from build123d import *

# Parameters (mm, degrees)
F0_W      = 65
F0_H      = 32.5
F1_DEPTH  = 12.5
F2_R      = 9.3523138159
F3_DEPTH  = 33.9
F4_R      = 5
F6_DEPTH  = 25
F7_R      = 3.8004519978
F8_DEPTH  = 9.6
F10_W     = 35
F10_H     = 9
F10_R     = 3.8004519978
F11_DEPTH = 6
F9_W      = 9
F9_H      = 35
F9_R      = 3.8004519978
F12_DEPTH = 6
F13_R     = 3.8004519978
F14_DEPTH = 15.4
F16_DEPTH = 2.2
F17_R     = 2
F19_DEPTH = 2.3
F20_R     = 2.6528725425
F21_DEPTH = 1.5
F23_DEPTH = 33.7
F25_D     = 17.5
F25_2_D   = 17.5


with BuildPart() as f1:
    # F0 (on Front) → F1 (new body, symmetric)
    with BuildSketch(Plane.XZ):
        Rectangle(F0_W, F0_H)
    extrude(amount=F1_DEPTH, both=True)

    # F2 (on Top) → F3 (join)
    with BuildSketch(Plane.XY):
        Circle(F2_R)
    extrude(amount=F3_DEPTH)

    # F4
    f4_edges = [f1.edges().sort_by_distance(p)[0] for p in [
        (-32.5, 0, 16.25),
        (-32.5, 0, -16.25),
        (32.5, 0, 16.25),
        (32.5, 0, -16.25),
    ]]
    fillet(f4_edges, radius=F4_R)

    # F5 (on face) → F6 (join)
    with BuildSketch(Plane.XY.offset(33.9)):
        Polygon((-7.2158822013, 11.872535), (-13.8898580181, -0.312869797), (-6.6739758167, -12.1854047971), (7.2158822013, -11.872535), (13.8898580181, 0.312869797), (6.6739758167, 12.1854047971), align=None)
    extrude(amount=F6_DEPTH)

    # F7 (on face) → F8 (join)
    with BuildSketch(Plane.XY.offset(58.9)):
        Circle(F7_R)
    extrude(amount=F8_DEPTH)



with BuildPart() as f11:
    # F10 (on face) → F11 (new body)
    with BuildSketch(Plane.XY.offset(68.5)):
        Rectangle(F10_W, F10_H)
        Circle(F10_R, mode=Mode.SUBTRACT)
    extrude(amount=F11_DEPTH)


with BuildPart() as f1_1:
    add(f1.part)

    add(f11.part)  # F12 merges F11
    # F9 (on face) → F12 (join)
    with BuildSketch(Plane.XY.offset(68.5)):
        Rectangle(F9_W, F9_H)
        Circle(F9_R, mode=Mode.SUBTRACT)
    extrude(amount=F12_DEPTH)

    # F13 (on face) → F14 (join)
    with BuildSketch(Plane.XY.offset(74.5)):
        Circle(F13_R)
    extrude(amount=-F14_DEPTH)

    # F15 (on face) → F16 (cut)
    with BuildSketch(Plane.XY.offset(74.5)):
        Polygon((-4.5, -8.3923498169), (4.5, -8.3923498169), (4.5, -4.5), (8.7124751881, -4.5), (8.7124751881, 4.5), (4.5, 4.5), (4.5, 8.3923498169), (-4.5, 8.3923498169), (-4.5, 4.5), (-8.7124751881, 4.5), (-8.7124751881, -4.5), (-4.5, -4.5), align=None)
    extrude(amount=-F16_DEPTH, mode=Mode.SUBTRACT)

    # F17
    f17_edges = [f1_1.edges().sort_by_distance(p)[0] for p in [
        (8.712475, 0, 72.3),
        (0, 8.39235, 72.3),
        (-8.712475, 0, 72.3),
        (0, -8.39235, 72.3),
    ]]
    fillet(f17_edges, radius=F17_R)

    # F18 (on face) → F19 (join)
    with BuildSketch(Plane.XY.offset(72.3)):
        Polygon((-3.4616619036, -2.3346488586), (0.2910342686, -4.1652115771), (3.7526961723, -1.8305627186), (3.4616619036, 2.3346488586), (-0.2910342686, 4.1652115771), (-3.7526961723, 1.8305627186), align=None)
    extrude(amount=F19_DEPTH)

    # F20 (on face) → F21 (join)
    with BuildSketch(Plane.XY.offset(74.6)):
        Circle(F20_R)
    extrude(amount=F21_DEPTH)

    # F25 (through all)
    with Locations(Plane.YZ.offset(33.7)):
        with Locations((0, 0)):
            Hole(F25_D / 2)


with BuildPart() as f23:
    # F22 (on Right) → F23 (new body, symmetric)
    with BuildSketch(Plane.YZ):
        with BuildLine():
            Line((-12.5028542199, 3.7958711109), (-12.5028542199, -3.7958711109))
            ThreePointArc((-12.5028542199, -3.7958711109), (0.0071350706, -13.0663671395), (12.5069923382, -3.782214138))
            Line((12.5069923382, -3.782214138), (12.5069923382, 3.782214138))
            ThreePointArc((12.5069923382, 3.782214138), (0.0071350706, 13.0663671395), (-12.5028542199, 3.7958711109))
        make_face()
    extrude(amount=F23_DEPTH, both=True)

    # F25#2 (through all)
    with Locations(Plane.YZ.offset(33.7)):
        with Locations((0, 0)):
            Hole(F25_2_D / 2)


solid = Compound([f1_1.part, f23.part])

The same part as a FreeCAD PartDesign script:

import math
import FreeCAD as App
import Part
import Sketcher

V = App.Vector


def edges_at(feature, points):
    """Names of the edges that pass closest to the given points."""
    edges = feature.Shape.Edges
    near = lambda p: min(range(len(edges)), key=lambda i: edges[i].distToShape(Part.Vertex(*p))[0])
    return sorted({f"Edge{near(p) + 1}" for p in points})


def add_polygon(sketch, points):
    """Adds a closed chain of lines whose ends are joined by coincident constraints."""
    first, n = sketch.GeometryCount, len(points)
    for a, b in zip(points, points[1:] + points[:1]):
        sketch.addGeometry(Part.LineSegment(App.Vector(*a, 0), App.Vector(*b, 0)), False)
    for i in range(n):
        sketch.addConstraint(Sketcher.Constraint("Coincident", first + i, 2, first + (i + 1) % n, 1))

doc = App.newDocument("Part")
body = doc.addObject("PartDesign::Body", "Body")

# Sketch on XZ plane
sketch1 = body.newObject("Sketcher::SketchObject", "Sketch")
sketch1.AttachmentSupport = (doc.getObject("XZ_Plane"), [""])
sketch1.MapMode = "FlatFace"
add_polygon(sketch1, [(-32, 16), (-32, -16), (32, -16), (32, 16)])  # lines 0-3
sketch1.addConstraint([
    Sketcher.Constraint("Vertical", 0),
    Sketcher.Constraint("Horizontal", 1),
    Sketcher.Constraint("Vertical", 2),
    Sketcher.Constraint("Horizontal", 3),
    Sketcher.Constraint("Symmetric", 0, 2, 2, 2, -1, 1),
    Sketcher.Constraint("DistanceX", 1, 1, 1, 2, 65.0),
    Sketcher.Constraint("DistanceY", 0, 2, 0, 1, 32.5),
])
pad1 = body.newObject("PartDesign::Pad", "Pad")
pad1.Profile = sketch1
pad1.Length = 25
pad1.Midplane = True

# Sketch on XY plane
sketch2 = body.newObject("Sketcher::SketchObject", "Sketch001")
sketch2.AttachmentSupport = (doc.getObject("XY_Plane"), [""])
sketch2.MapMode = "FlatFace"
sketch2.addGeometry(Part.Circle(V(0, 0, 0), V(0, 0, 1), 9), False)
sketch2.addConstraint([
    Sketcher.Constraint("Coincident", 0, 3, -1, 1),
    Sketcher.Constraint("Diameter", 0, 18.704628),
])
pad2 = body.newObject("PartDesign::Pad", "Pad001")
pad2.Profile = sketch2
pad2.Length = 33.9
doc.recompute()

fillet = body.newObject("PartDesign::Fillet", "Fillet")
fillet.Base = (pad2, edges_at(pad2, [
    (-32.5, 0, 16.25),
    (-32.5, 0, -16.25),
    (32.5, 0, 16.25),
    (32.5, 0, -16.25),
]))
fillet.Radius = 5

# Sketch on XY plane
sketch3 = body.newObject("Sketcher::SketchObject", "Sketch002")
sketch3.AttachmentSupport = (doc.getObject("XY_Plane"), [""])
sketch3.MapMode = "FlatFace"
sketch3.AttachmentOffset = App.Placement(V(0, 0, 33.9), App.Rotation())
add_polygon(sketch3, [(-7, 12), (-14, 0), (-7, -12), (7, -12), (14, 0), (7, 12)])  # lines 0-5
sketch3.addConstraint([
    Sketcher.Constraint("Symmetric", 0, 2, 3, 2, -1, 1),
    Sketcher.Constraint("Symmetric", 1, 2, 4, 2, -1, 1),
    Sketcher.Constraint("Symmetric", 2, 2, 5, 2, -1, 1),
    Sketcher.Constraint("Equal", 0, 1),
    Sketcher.Constraint("Equal", 1, 2),
    Sketcher.Constraint("Distance", 0, 13.893381),
    Sketcher.Constraint("DistanceX", 0, 2, -1, 1, 13.889858),
    Sketcher.Constraint("DistanceY", 0, 2, -1, 1, 0.31287),
    Sketcher.Constraint("DistanceX", 1, 2, 2, 2, 13.889858),
])
pad3 = body.newObject("PartDesign::Pad", "Pad002")
pad3.Profile = sketch3
pad3.Length = 25

# Sketch on XY plane
sketch4 = body.newObject("Sketcher::SketchObject", "Sketch003")
sketch4.AttachmentSupport = (doc.getObject("XY_Plane"), [""])
sketch4.MapMode = "FlatFace"
sketch4.AttachmentOffset = App.Placement(V(0, 0, 58.9), App.Rotation())
sketch4.addGeometry(Part.Circle(V(0, 0, 0), V(0, 0, 1), 3.8), False)
sketch4.addConstraint([
    Sketcher.Constraint("Coincident", 0, 3, -1, 1),
    Sketcher.Constraint("Diameter", 0, 7.600904),
])
pad4 = body.newObject("PartDesign::Pad", "Pad003")
pad4.Profile = sketch4
pad4.Length = 9.6
body2 = doc.addObject("PartDesign::Body", "Body001")

# Sketch on XY plane
sketch5 = body2.newObject("Sketcher::SketchObject", "Sketch004")
sketch5.AttachmentSupport = (doc.getObject("XY_Plane001"), [""])
sketch5.MapMode = "FlatFace"
sketch5.AttachmentOffset = App.Placement(V(0, 0, 68.5), App.Rotation())
add_polygon(sketch5, [(-17.5, 4.5), (-17.5, -4.5), (17.5, -4.5), (17.5, 4.5)])  # lines 0-3
sketch5.addGeometry(Part.Circle(V(0, 0, 0), V(0, 0, 1), 3.8), False)  # 4
sketch5.addConstraint([
    Sketcher.Constraint("Vertical", 0),
    Sketcher.Constraint("Horizontal", 1),
    Sketcher.Constraint("Vertical", 2),
    Sketcher.Constraint("Horizontal", 3),
    Sketcher.Constraint("Coincident", 4, 3, -1, 1),
    Sketcher.Constraint("Symmetric", 0, 2, 2, 2, -1, 1),
    Sketcher.Constraint("DistanceX", 1, 1, 1, 2, 35.0),
    Sketcher.Constraint("DistanceY", 0, 2, 0, 1, 9.0),
    Sketcher.Constraint("Diameter", 4, 7.600904),
])
pad5 = body2.newObject("PartDesign::Pad", "Pad004")
pad5.Profile = sketch5
pad5.Length = 6
body.AllowCompound = True
doc.recompute()

boolean = body.newObject("PartDesign::Boolean", "Boolean")
boolean.Type = "Fuse"
boolean.addObjects([body2])

# Sketch on XY plane
sketch6 = body.newObject("Sketcher::SketchObject", "Sketch005")
sketch6.AttachmentSupport = (doc.getObject("XY_Plane"), [""])
sketch6.MapMode = "FlatFace"
sketch6.AttachmentOffset = App.Placement(V(0, 0, 68.5), App.Rotation())
add_polygon(sketch6, [(-4.5, 17.5), (-4.5, -17.5), (4.5, -17.5), (4.5, 17.5)])  # lines 0-3
sketch6.addGeometry(Part.Circle(V(0, 0, 0), V(0, 0, 1), 3.8), False)  # 4
sketch6.addConstraint([
    Sketcher.Constraint("Vertical", 0),
    Sketcher.Constraint("Horizontal", 1),
    Sketcher.Constraint("Vertical", 2),
    Sketcher.Constraint("Horizontal", 3),
    Sketcher.Constraint("Coincident", 4, 3, -1, 1),
    Sketcher.Constraint("Symmetric", 0, 2, 2, 2, -1, 1),
    Sketcher.Constraint("DistanceX", 1, 1, 1, 2, 9.0),
    Sketcher.Constraint("DistanceY", 0, 2, 0, 1, 35.0),
    Sketcher.Constraint("Diameter", 4, 7.600904),
])
pad6 = body.newObject("PartDesign::Pad", "Pad005")
pad6.Profile = sketch6
pad6.Length = 6

# Sketch on XY plane
sketch7 = body.newObject("Sketcher::SketchObject", "Sketch006")
sketch7.AttachmentSupport = (doc.getObject("XY_Plane"), [""])
sketch7.MapMode = "FlatFace"
sketch7.AttachmentOffset = App.Placement(V(0, 0, 74.5), App.Rotation())
sketch7.addGeometry(Part.Circle(V(0, 0, 0), V(0, 0, 1), 3.8), False)
sketch7.addConstraint([
    Sketcher.Constraint("Coincident", 0, 3, -1, 1),
    Sketcher.Constraint("Diameter", 0, 7.600904),
])
pad7 = body.newObject("PartDesign::Pad", "Pad006")
pad7.Profile = sketch7
pad7.Length = 15.4
pad7.Reversed = True

# Sketch on XY plane
sketch8 = body.newObject("Sketcher::SketchObject", "Sketch007")
sketch8.AttachmentSupport = (doc.getObject("XY_Plane"), [""])
sketch8.MapMode = "FlatFace"
sketch8.AttachmentOffset = App.Placement(V(0, 0, 74.5), App.Rotation())
add_polygon(sketch8, [(-4.5, -8.4), (4.5, -8.4), (4.5, -4.5), (8.7, -4.5), (8.7, 4.5), (4.5, 4.5), (4.5, 8.4), (-4.5, 8.4), (-4.5, 4.5), (-8.7, 4.5), (-8.7, -4.5), (-4.5, -4.5)])  # lines 0-11
sketch8.addConstraint([
    Sketcher.Constraint("Horizontal", 0),
    Sketcher.Constraint("Vertical", 1),
    Sketcher.Constraint("Horizontal", 2),
    Sketcher.Constraint("Vertical", 3),
    Sketcher.Constraint("Horizontal", 4),
    Sketcher.Constraint("Vertical", 5),
    Sketcher.Constraint("Horizontal", 6),
    Sketcher.Constraint("Vertical", 7),
    Sketcher.Constraint("Horizontal", 8),
    Sketcher.Constraint("Vertical", 9),
    Sketcher.Constraint("Horizontal", 10),
    Sketcher.Constraint("Vertical", 11),
    Sketcher.Constraint("Symmetric", 0, 2, 6, 2, -1, 1),
    Sketcher.Constraint("Symmetric", 2, 2, 8, 2, -1, 1),
    Sketcher.Constraint("Symmetric", 4, 2, 10, 2, -1, 1),
    Sketcher.Constraint("Symmetric", 4, 2, 7, 2, -2),
    Sketcher.Constraint("Equal", 6, 3),
    Sketcher.Constraint("DistanceX", 0, 1, 0, 2, 9.0),
    Sketcher.Constraint("DistanceY", 1, 1, 1, 2, 3.89235),
    Sketcher.Constraint("DistanceX", 2, 1, 2, 2, 4.212475),
])
pocket1 = body.newObject("PartDesign::Pocket", "Pocket")
pocket1.Profile = sketch8
pocket1.Length = 2.2
doc.recompute()

fillet2 = body.newObject("PartDesign::Fillet", "Fillet001")
fillet2.Base = (pocket1, edges_at(pocket1, [
    (8.712, 0, 72.3),
    (0, 8.392, 72.3),
    (-8.712, 0, 72.3),
    (0, -8.392, 72.3),
]))
fillet2.Radius = 2

# Sketch on XY plane
sketch9 = body.newObject("Sketcher::SketchObject", "Sketch008")
sketch9.AttachmentSupport = (doc.getObject("XY_Plane"), [""])
sketch9.MapMode = "FlatFace"
sketch9.AttachmentOffset = App.Placement(V(0, 0, 72.3), App.Rotation())
add_polygon(sketch9, [(-3.5, -2.3), (0.3, -4.2), (3.8, -1.8), (3.5, 2.3), (-0.3, 4.2), (-3.8, 1.8)])  # lines 0-5
sketch9.addConstraint([
    Sketcher.Constraint("Symmetric", 0, 2, 3, 2, -1, 1),
    Sketcher.Constraint("Symmetric", 1, 2, 4, 2, -1, 1),
    Sketcher.Constraint("Symmetric", 2, 2, 5, 2, -1, 1),
    Sketcher.Constraint("Equal", 0, 1),
    Sketcher.Constraint("Equal", 1, 2),
    Sketcher.Constraint("DistanceY", 0, 2, -1, 1, 4.165212),
    Sketcher.Constraint("DistanceX", -1, 1, 2, 2, 3.461662),
    Sketcher.Constraint("DistanceY", -1, 1, 2, 2, 2.334649),
    Sketcher.Constraint("DistanceX", 0, 2, 1, 2, 3.461662),
])
pad8 = body.newObject("PartDesign::Pad", "Pad007")
pad8.Profile = sketch9
pad8.Length = 2.3

# Sketch on XY plane
sketch10 = body.newObject("Sketcher::SketchObject", "Sketch009")
sketch10.AttachmentSupport = (doc.getObject("XY_Plane"), [""])
sketch10.MapMode = "FlatFace"
sketch10.AttachmentOffset = App.Placement(V(0, 0, 74.6), App.Rotation())
sketch10.addGeometry(Part.Circle(V(0, 0, 0), V(0, 0, 1), 2.7), False)
sketch10.addConstraint([
    Sketcher.Constraint("Coincident", 0, 3, -1, 1),
    Sketcher.Constraint("Diameter", 0, 5.305745),
])
pad9 = body.newObject("PartDesign::Pad", "Pad008")
pad9.Profile = sketch10
pad9.Length = 1.5

# Sketch on YZ plane
sketch11 = body.newObject("Sketcher::SketchObject", "Sketch010")
sketch11.AttachmentSupport = (doc.getObject("YZ_Plane"), [""])
sketch11.MapMode = "FlatFace"
sketch11.AttachmentOffset = App.Placement(V(0, 0, 33.7), App.Rotation())
sketch11.addGeometry(Part.Circle(V(0, 0, 0), V(0, 0, 1), 9), False)
sketch11.addConstraint([
    Sketcher.Constraint("Coincident", 0, 3, -1, 1),
    Sketcher.Constraint("Diameter", 0, 17.5),
])
doc.recompute()
hole = body.newObject("PartDesign::Hole", "Hole")
hole.Profile = sketch11
hole.ThreadType = "None"
hole.Diameter = 17.5
hole.DepthType = "ThroughAll"
body3 = doc.addObject("PartDesign::Body", "Body002")

# Sketch on YZ plane
sketch12 = body3.newObject("Sketcher::SketchObject", "Sketch011")
sketch12.AttachmentSupport = (doc.getObject("YZ_Plane002"), [""])
sketch12.MapMode = "FlatFace"
sketch12.addGeometry([
    Part.LineSegment(V(-13, 4, 0), V(-13, -4, 0)),
    Part.ArcOfCircle(Part.Circle(V(0, 0, 0), V(0, 0, 1), 13), math.radians(-163), math.radians(-17)),
    Part.LineSegment(V(13, -4, 0), V(13, 4, 0)),
    Part.ArcOfCircle(Part.Circle(V(0, 0, 0), V(0, 0, 1), 13), math.radians(17), math.radians(163)),
], False)
sketch12.addConstraint([
    Sketcher.Constraint("Coincident", 0, 2, 1, 1),
    Sketcher.Constraint("Coincident", 1, 2, 2, 1),
    Sketcher.Constraint("Coincident", 2, 2, 3, 1),
    Sketcher.Constraint("Coincident", 3, 2, 0, 1),
    Sketcher.Constraint("Vertical", 0),
    Sketcher.Constraint("Vertical", 2),
    Sketcher.Constraint("Coincident", 1, 3, -1, 1),
    Sketcher.Constraint("Coincident", 3, 3, -1, 1),
    Sketcher.Constraint("Equal", 1, 3),
    Sketcher.Constraint("Radius", 1, 13.066369),
    Sketcher.Constraint("DistanceY", 2, 1, 2, 2, 7.564428),
    Sketcher.Constraint("DistanceY", 0, 2, 0, 1, 7.591742),
])
pad10 = body3.newObject("PartDesign::Pad", "Pad009")
pad10.Profile = sketch12
pad10.Length = 67.4
pad10.Midplane = True

# Sketch on YZ plane
sketch13 = body3.newObject("Sketcher::SketchObject", "Sketch012")
sketch13.AttachmentSupport = (doc.getObject("YZ_Plane002"), [""])
sketch13.MapMode = "FlatFace"
sketch13.AttachmentOffset = App.Placement(V(0, 0, 33.7), App.Rotation())
sketch13.addGeometry(Part.Circle(V(0, 0, 0), V(0, 0, 1), 9), False)
sketch13.addConstraint([
    Sketcher.Constraint("Coincident", 0, 3, -1, 1),
    Sketcher.Constraint("Diameter", 0, 17.5),
])
doc.recompute()
hole2 = body3.newObject("PartDesign::Hole", "Hole001")
hole2.Profile = sketch13
hole2.ThreadType = "None"
hole2.Diameter = 17.5
hole2.DepthType = "ThroughAll"

doc.recompute()
